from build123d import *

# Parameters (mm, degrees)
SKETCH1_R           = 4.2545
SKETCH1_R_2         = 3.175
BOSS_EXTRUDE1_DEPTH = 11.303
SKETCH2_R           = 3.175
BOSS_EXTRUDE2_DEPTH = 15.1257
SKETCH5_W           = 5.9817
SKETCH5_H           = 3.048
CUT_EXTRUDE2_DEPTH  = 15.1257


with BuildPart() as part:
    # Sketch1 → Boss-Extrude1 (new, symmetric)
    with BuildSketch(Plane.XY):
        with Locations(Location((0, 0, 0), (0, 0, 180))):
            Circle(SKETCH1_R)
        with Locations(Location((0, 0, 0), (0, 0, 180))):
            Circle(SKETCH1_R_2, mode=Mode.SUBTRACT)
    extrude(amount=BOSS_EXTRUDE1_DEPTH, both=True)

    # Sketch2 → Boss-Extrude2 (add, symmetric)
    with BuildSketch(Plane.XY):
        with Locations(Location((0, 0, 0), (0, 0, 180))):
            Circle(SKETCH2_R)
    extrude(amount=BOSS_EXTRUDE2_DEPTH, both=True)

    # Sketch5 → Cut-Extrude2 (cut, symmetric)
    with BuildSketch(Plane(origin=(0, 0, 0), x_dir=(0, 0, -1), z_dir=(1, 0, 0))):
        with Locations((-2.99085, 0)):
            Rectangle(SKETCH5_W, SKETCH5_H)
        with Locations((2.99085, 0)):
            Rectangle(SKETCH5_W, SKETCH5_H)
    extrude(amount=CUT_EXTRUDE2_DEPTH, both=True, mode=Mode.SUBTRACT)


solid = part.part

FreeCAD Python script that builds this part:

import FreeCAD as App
import Part
import Sketcher

V = App.Vector
Q = App.Units.Quantity


def add_polygon(sketch, points):
    """Adds a closed chain of lines whose ends are joined by coincident constraints."""
    first, n = sketch.GeometryCount, len(points)
    for a, b in zip(points, points[1:] + points[:1]):
        sketch.addGeometry(Part.LineSegment(App.Vector(*a, 0), App.Vector(*b, 0)), False)
    for i in range(n):
        sketch.addConstraint(Sketcher.Constraint("Coincident", first + i, 2, first + (i + 1) % n, 1))

doc = App.newDocument("Part")
params = doc.addObject("Spreadsheet::Sheet", "Params")
for row, (alias, value) in enumerate([
    ("sketch1_diameter", "0.25 in"),
    ("sketch1_diameter2", "0.335 in"),
    ("pad1_length", "0.89 in"),
    ("sketch2_diameter", "0.25 in"),
    ("pad2_length", "1.191 in"),
    ("sketch3_width", "0.12 in"),
    ("sketch3_height", "0.471 in"),
    ("pocket1_length", "1.191 in"),
], start=1):
    params.set(f"A{row}", alias)
    params.set(f"B{row}", "=" + value)
    params.setAlias(f"B{row}", alias)

body = doc.addObject("PartDesign::Body", "Body")

# Sketch on XY plane
sketch1 = body.newObject("Sketcher::SketchObject", "Sketch")
sketch1.AttachmentSupport = (doc.getObject("XY_Plane"), [""])
sketch1.MapMode = "FlatFace"
sketch1.addGeometry([
    Part.Circle(V(0, 0, 0), V(0, 0, 1), 4.2545),
    Part.Circle(V(0, 0, 0), V(0, 0, 1), 3.175),
], False)
sketch1.addConstraint([
    Sketcher.Constraint("Coincident", 0, 3, -1, 1),
    Sketcher.Constraint("Coincident", 1, 3, -1, 1),
    Sketcher.Constraint("Diameter", 1, Q("0.25 in")),
    Sketcher.Constraint("Diameter", 0, Q("0.335 in")),
])
sketch1.setExpression("Constraints[2]", "Params.sketch1_diameter")
sketch1.setExpression("Constraints[3]", "Params.sketch1_diameter2")
pad1 = body.newObject("PartDesign::Pad", "Pad")
pad1.Profile = sketch1
pad1.setExpression("Length", "Params.pad1_length")
pad1.Midplane = True

# Sketch on XY plane
sketch2 = body.newObject("Sketcher::SketchObject", "Sketch001")
sketch2.AttachmentSupport = (doc.getObject("XY_Plane"), [""])
sketch2.MapMode = "FlatFace"
sketch2.addGeometry(Part.Circle(V(0, 0, 0), V(0, 0, 1), 3.175), False)
sketch2.addConstraint([
    Sketcher.Constraint("Coincident", 0, 3, -1, 1),
    Sketcher.Constraint("Diameter", 0, Q("0.25 in")),
])
sketch2.setExpression("Constraints[1]", "Params.sketch2_diameter")
pad2 = body.newObject("PartDesign::Pad", "Pad001")
pad2.Profile = sketch2
pad2.setExpression("Length", "Params.pad2_length")
pad2.Midplane = True

# Sketch on YZ plane
sketch3 = body.newObject("Sketcher::SketchObject", "Sketch002")
sketch3.AttachmentSupport = (doc.getObject("YZ_Plane"), [""])
sketch3.MapMode = "FlatFace"
add_polygon(sketch3, [(1.524, 5.9817), (-1.524, 5.9817), (-1.524, -5.9817), (1.524, -5.9817)])  # lines 0-3
sketch3.addConstraint([
    Sketcher.Constraint("Horizontal", 0),
    Sketcher.Constraint("Vertical", 1),
    Sketcher.Constraint("Horizontal", 2),
    Sketcher.Constraint("Vertical", 3),
    Sketcher.Constraint("Symmetric", 0, 2, 2, 2, -1, 1),
    Sketcher.Constraint("DistanceX", 0, 2, 0, 1, Q("0.12 in")),
    Sketcher.Constraint("DistanceY", 1, 2, 1, 1, Q("0.471 in")),
])
sketch3.setExpression("Constraints[9]", "Params.sketch3_width")
sketch3.setExpression("Constraints[10]", "Params.sketch3_height")
pocket1 = body.newObject("PartDesign::Pocket", "Pocket")
pocket1.Profile = sketch3
pocket1.setExpression("Length", "Params.pocket1_length")
pocket1.Midplane = True

doc.recompute()
